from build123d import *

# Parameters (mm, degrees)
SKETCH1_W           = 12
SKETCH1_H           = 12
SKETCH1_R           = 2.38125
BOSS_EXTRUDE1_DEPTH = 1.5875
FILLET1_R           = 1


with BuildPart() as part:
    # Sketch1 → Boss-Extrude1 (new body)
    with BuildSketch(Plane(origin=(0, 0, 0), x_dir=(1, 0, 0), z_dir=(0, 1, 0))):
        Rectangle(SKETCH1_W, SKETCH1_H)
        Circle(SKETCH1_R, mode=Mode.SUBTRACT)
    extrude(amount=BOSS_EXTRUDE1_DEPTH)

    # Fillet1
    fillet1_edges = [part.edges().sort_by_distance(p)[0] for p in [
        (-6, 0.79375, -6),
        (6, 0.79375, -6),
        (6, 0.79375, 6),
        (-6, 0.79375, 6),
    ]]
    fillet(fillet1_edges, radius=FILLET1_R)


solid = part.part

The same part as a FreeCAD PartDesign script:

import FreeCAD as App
import Part
import Sketcher

V = App.Vector
Q = App.Units.Quantity


def edges_at(feature, points):
    """Names of the edges that pass closest to the given points."""
    edges = feature.Shape.Edges
    near = lambda p: min(range(len(edges)), key=lambda i: edges[i].distToShape(Part.Vertex(*p))[0])
    return sorted({f"Edge{near(p) + 1}" for p in points})


def add_polygon(sketch, points):
    """Adds a closed chain of lines whose ends are joined by coincident constraints."""
    first, n = sketch.GeometryCount, len(points)
    for a, b in zip(points, points[1:] + points[:1]):
        sketch.addGeometry(Part.LineSegment(App.Vector(*a, 0), App.Vector(*b, 0)), False)
    for i in range(n):
        sketch.addConstraint(Sketcher.Constraint("Coincident", first + i, 2, first + (i + 1) % n, 1))

doc = App.newDocument("Part")
body = doc.addObject("PartDesign::Body", "Body")

sketch1 = body.newObject("Sketcher::SketchObject", "Sketch")
sketch1.AttachmentSupport = (doc.getObject("XZ_Plane"), [""])
sketch1.MapMode = "FlatFace"
add_polygon(sketch1, [(-6, -6), (-6, 6), (6, 6), (6, -6)])
sketch1.addGeometry(Part.Circle(V(0, 0, 0), V(0, 0, 1), 2.38125), False)
sketch1.addConstraint(Sketcher.Constraint("Vertical", 0))
sketch1.addConstraint(Sketcher.Constraint("Horizontal", 1))
sketch1.addConstraint(Sketcher.Constraint("Vertical", 2))
sketch1.addConstraint(Sketcher.Constraint("Horizontal", 3))
sketch1.addConstraint(Sketcher.Constraint("Coincident", 4, 3, -1, 1))
sketch1.addConstraint(Sketcher.Constraint("Symmetric", 0, 2, 2, 2, -1, 1))
sketch1.addConstraint(Sketcher.Constraint("Equal", 3, 0))
sketch1.addConstraint(Sketcher.Constraint("DistanceX", 1, 1, 1, 2, Q("12 mm")))
sketch1.addConstraint(Sketcher.Constraint("Diameter", 4, Q("4.7625 mm")))
pad1 = body.newObject("PartDesign::Pad", "Pad")
pad1.Profile = sketch1
pad1.Length = 1.5875
pad1.Reversed = True
doc.recompute()

fillet = body.newObject("PartDesign::Fillet", "Fillet")
fillet.Base = (pad1, edges_at(pad1, [
    (-6, 0.794, -6),
    (6, 0.794, -6),
    (6, 0.794, 6),
    (-6, 0.794, 6),
]))
fillet.Radius = 1

doc.recompute()
